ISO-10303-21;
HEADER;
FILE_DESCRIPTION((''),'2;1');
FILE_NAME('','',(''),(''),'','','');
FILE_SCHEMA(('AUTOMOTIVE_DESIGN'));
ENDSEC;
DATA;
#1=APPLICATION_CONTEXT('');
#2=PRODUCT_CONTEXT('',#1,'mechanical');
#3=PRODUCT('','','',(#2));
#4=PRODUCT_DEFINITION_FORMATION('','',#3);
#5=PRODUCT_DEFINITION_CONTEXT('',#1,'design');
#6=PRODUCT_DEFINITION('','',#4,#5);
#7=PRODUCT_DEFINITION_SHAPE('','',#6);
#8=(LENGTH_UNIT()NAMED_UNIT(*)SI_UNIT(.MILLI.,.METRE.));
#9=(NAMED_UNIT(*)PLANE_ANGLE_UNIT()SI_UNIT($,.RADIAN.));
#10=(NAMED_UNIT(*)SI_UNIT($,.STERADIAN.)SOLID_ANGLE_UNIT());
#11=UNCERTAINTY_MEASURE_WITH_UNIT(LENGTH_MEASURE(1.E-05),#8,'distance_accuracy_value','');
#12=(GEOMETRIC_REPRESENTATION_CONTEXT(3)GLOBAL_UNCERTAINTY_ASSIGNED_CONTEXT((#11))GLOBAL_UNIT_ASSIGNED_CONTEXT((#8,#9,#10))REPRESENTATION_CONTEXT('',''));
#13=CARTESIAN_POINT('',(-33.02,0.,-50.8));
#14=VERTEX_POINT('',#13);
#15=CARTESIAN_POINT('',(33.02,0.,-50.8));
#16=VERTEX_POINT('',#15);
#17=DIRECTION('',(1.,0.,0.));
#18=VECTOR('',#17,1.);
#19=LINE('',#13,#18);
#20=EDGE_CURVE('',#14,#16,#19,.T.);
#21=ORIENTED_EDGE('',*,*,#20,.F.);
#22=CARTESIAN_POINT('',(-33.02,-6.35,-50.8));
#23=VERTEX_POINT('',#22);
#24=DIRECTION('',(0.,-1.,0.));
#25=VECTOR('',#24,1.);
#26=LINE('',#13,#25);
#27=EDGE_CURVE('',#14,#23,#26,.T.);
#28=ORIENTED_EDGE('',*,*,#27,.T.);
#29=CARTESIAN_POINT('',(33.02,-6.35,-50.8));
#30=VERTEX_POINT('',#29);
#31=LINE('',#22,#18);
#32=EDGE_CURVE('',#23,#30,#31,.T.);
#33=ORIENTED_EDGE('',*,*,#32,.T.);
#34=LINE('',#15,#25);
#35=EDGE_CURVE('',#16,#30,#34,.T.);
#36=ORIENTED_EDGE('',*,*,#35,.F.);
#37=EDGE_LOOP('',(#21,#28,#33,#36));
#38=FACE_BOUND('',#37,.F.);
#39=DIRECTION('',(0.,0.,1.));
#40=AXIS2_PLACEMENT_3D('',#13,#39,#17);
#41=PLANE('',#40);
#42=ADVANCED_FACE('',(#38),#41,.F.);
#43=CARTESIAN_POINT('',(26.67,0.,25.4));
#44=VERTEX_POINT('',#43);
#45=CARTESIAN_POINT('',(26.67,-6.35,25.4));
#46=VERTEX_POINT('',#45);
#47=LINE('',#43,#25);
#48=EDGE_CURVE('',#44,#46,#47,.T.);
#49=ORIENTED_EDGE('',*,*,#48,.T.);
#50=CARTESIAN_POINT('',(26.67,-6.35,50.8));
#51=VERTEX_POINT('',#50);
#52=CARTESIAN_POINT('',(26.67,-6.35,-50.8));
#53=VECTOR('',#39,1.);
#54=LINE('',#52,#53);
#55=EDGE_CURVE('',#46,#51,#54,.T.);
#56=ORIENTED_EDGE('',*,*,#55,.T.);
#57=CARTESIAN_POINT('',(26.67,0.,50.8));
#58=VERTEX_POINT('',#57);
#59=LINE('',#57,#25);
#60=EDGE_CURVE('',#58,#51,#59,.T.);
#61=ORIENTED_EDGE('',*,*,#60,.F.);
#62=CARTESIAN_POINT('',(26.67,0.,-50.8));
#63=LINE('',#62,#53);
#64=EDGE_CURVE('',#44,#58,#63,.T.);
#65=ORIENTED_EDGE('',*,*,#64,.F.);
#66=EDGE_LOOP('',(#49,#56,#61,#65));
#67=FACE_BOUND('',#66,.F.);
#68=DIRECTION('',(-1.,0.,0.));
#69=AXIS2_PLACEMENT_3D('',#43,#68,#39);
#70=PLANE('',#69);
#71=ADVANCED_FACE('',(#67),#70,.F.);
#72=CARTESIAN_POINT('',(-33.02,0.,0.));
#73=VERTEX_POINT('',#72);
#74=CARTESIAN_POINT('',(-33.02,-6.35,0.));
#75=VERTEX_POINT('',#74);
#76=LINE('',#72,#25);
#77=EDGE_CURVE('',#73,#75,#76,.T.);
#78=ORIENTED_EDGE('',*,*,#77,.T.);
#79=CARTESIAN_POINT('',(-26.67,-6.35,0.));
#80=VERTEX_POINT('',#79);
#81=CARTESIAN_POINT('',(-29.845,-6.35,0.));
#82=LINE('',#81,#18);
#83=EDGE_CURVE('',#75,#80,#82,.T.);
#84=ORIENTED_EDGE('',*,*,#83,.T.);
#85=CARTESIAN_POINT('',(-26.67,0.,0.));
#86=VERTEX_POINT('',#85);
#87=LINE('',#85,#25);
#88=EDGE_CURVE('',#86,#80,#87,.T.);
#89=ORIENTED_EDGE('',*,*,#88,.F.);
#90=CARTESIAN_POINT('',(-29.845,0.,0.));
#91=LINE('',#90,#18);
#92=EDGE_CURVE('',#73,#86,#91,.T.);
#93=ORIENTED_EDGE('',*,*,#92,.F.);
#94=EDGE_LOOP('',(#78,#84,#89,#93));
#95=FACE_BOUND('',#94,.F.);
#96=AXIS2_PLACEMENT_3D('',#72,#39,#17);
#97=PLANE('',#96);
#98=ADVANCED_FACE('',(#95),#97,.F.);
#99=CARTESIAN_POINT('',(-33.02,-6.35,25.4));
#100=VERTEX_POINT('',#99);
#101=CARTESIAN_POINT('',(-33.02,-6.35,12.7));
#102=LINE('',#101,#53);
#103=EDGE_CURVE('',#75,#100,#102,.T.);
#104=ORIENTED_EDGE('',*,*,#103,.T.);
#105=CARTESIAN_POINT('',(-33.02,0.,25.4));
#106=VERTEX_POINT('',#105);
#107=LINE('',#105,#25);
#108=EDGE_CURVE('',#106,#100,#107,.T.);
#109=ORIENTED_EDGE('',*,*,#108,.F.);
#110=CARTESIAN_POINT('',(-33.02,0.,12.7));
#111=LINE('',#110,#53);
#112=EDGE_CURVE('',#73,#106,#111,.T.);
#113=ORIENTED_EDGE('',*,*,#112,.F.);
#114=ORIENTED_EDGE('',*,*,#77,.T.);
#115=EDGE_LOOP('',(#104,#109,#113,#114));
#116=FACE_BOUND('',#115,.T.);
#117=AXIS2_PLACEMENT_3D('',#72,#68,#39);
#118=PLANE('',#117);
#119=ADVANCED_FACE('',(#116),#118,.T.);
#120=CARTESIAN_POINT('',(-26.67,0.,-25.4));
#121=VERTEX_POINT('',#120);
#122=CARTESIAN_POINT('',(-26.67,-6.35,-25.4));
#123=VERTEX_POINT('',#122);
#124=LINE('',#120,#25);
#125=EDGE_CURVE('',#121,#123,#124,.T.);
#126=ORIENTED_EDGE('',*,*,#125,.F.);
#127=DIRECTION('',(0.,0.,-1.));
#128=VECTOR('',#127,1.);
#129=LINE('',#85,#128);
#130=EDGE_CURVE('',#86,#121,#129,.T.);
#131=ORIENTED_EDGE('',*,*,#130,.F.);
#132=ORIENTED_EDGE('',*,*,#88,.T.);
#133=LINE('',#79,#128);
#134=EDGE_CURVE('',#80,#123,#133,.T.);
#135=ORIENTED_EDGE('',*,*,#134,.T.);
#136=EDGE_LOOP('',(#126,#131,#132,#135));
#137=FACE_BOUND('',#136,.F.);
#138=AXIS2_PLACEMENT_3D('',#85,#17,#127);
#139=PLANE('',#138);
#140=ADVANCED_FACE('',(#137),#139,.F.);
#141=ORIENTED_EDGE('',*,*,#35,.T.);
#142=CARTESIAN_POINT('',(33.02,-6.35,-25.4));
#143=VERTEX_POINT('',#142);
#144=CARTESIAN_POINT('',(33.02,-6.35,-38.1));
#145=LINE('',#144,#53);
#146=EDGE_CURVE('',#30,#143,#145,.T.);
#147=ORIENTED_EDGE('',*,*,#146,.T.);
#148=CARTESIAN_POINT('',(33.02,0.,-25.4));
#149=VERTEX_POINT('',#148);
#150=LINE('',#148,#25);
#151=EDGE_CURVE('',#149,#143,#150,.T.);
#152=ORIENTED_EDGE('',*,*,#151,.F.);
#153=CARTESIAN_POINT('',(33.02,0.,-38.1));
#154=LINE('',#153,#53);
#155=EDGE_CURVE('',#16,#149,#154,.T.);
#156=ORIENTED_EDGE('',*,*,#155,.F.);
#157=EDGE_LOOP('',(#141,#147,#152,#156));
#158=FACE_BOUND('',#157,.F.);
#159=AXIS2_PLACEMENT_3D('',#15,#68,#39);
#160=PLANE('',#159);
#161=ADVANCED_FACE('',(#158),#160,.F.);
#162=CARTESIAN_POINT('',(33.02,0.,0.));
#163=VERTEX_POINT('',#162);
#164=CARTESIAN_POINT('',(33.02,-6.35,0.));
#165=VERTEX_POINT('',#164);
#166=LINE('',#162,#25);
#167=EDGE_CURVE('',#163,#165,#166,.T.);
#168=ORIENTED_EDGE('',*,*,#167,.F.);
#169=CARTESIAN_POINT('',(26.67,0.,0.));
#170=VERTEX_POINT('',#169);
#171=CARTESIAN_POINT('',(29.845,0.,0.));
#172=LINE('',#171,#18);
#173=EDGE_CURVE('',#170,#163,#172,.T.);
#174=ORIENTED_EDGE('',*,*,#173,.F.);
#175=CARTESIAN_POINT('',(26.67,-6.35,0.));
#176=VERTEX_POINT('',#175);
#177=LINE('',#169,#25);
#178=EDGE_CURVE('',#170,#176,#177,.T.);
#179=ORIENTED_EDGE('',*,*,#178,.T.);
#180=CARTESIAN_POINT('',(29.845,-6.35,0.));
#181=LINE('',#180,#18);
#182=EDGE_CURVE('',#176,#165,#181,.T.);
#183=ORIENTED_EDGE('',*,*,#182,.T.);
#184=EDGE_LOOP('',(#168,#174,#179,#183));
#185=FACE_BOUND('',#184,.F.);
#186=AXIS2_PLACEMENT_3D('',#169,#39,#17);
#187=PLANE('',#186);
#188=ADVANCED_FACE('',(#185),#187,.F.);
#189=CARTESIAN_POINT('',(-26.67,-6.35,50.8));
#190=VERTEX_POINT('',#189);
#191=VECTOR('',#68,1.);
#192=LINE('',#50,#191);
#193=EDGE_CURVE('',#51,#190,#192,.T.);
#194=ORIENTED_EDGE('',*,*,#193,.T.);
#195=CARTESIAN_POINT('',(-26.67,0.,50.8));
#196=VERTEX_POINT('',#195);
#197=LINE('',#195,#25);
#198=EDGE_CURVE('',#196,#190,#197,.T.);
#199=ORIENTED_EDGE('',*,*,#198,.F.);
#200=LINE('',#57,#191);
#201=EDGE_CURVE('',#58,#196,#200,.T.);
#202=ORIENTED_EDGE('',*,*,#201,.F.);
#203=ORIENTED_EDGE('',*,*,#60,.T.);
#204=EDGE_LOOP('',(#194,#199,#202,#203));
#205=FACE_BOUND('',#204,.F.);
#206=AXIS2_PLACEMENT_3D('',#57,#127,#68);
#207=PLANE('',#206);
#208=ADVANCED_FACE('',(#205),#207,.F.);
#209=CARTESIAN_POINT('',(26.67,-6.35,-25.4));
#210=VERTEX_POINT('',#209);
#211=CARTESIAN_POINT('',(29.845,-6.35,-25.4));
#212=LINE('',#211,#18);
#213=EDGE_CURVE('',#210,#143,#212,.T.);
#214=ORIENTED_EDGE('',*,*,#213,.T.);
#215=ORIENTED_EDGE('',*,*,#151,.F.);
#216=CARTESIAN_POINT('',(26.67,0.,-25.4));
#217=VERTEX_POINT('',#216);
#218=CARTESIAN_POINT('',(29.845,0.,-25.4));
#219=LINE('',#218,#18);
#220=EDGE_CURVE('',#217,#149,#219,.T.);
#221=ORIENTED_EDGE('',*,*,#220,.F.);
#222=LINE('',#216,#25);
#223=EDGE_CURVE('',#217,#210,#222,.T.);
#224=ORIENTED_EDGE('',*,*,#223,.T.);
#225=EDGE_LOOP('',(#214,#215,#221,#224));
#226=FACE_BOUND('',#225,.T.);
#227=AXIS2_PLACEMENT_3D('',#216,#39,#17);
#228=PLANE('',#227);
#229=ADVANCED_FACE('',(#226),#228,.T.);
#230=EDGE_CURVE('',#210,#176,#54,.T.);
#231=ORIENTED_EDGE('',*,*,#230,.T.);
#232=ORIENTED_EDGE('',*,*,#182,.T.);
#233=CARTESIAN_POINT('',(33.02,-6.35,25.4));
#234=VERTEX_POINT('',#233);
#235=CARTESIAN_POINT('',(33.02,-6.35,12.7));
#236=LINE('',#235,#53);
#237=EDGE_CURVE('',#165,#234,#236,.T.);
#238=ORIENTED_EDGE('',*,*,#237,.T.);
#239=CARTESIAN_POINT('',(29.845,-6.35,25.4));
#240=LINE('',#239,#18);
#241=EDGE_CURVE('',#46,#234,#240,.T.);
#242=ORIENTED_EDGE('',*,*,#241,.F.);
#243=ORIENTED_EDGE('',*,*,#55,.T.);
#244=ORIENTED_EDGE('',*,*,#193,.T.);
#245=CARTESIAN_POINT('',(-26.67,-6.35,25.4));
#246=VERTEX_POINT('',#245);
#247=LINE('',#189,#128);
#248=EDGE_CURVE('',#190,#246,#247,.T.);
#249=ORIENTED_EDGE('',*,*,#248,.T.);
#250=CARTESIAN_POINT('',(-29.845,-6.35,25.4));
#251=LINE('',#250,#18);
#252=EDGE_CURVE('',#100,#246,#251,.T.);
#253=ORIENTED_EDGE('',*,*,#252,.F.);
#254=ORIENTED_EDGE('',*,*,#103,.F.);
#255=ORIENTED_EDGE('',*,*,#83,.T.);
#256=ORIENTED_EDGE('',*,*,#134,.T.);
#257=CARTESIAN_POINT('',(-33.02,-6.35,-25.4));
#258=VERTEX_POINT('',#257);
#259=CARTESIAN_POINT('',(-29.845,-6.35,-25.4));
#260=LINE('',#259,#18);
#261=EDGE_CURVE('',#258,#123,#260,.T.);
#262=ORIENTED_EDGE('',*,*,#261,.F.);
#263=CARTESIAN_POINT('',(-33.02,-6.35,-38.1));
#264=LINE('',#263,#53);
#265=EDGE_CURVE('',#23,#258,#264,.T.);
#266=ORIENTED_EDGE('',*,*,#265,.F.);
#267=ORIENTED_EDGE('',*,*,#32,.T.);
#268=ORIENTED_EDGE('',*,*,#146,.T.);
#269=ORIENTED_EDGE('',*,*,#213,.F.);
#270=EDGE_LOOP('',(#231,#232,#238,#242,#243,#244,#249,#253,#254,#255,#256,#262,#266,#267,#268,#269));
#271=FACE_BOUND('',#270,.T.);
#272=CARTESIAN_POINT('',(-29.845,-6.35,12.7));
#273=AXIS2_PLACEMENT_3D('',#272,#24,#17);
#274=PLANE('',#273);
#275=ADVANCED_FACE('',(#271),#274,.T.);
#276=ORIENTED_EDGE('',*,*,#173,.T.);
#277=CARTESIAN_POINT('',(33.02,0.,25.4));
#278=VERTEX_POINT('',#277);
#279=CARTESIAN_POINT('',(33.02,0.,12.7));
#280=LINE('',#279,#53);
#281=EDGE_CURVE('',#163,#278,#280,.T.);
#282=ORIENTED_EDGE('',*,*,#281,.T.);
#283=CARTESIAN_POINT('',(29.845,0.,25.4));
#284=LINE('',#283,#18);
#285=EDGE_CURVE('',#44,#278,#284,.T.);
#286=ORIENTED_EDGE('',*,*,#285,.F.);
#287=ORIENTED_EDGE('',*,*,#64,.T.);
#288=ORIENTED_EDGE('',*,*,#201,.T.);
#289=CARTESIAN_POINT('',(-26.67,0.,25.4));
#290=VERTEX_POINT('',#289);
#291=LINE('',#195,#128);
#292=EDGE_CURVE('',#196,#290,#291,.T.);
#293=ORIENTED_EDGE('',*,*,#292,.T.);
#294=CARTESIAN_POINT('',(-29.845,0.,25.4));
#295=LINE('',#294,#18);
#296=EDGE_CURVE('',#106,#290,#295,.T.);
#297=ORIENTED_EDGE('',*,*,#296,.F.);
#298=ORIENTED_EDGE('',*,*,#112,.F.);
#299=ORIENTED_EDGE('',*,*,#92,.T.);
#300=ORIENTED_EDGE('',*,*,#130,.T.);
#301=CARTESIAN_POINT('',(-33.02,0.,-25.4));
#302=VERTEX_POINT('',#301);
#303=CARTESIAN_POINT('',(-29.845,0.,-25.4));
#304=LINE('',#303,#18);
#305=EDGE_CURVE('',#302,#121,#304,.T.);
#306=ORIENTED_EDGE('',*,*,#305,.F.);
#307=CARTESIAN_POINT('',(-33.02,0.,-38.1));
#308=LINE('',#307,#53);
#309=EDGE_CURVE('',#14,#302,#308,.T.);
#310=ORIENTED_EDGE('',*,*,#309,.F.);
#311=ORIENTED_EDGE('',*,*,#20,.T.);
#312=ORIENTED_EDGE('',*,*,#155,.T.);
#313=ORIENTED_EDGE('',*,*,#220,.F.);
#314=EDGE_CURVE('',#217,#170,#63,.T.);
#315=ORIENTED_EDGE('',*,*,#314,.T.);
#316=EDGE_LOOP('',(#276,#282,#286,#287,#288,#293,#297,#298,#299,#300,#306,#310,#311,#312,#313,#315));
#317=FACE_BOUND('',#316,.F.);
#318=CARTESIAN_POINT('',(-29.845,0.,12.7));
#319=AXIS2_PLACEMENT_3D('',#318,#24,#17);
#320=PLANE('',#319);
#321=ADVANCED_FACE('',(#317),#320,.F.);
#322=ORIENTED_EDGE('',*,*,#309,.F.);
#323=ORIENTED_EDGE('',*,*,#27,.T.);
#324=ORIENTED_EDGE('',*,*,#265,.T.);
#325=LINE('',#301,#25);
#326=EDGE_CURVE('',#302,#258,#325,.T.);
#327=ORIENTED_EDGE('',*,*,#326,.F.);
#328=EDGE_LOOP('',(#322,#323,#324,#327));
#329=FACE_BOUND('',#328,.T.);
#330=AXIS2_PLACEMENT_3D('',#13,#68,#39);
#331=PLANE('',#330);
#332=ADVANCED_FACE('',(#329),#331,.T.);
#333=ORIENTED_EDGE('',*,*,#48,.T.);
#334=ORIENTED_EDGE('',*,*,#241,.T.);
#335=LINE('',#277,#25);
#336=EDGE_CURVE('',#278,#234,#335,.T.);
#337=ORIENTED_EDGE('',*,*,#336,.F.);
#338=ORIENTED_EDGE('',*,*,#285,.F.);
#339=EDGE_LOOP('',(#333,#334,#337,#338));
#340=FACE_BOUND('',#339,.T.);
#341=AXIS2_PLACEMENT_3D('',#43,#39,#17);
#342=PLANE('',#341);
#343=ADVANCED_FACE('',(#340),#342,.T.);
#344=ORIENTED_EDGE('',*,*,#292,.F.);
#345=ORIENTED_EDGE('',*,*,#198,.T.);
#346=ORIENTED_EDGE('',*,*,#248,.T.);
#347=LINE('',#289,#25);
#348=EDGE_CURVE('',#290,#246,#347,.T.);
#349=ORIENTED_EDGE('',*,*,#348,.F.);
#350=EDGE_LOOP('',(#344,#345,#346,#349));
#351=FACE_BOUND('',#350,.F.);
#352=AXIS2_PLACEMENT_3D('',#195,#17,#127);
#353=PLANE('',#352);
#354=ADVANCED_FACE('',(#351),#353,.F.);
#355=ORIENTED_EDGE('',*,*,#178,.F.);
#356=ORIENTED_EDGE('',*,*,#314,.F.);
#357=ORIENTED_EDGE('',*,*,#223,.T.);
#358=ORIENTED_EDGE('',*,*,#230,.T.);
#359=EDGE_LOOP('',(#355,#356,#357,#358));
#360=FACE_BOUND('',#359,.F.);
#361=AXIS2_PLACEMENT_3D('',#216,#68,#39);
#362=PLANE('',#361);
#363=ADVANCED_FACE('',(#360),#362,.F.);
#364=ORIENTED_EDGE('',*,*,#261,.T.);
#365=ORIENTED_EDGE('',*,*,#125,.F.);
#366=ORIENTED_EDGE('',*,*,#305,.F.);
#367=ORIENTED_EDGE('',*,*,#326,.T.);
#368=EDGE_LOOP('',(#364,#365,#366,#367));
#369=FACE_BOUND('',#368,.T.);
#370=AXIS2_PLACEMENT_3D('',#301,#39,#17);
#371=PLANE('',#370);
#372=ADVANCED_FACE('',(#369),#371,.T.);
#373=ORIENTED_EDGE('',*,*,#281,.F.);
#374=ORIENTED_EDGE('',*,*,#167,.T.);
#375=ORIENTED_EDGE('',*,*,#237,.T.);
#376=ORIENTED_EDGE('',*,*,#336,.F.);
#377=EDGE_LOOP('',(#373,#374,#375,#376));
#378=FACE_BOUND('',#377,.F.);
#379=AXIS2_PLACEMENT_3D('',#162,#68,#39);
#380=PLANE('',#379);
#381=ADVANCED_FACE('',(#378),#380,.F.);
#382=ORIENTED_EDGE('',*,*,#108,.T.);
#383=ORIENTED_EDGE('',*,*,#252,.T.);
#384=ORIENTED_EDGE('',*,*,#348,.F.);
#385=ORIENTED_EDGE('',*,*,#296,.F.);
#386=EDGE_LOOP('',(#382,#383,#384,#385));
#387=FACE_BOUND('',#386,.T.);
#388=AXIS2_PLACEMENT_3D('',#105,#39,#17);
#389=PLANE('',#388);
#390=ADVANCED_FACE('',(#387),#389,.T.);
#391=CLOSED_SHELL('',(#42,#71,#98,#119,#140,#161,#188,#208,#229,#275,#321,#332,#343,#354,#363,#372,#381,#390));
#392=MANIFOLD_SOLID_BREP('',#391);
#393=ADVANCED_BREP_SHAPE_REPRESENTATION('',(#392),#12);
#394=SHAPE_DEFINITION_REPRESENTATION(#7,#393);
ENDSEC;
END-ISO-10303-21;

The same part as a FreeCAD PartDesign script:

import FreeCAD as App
import Part
import Sketcher

V = App.Vector
Q = App.Units.Quantity


def add_polygon(sketch, points):
    """Adds a closed chain of lines whose ends are joined by coincident constraints."""
    first, n = sketch.GeometryCount, len(points)
    for a, b in zip(points, points[1:] + points[:1]):
        sketch.addGeometry(Part.LineSegment(App.Vector(*a, 0), App.Vector(*b, 0)), False)
    for i in range(n):
        sketch.addConstraint(Sketcher.Constraint("Coincident", first + i, 2, first + (i + 1) % n, 1))

doc = App.newDocument("Part")
body = doc.addObject("PartDesign::Body", "Body")

# Sketch on XZ plane
sketch1 = doc.addObject("Sketcher::SketchObject", "Sketch")
body.addObject(sketch1)
sketch1.AttachmentSupport = (doc.XZ_Plane, [""])
sketch1.MapMode = "FlatFace"
add_polygon(sketch1, [(-33.02, 25.4), (-33.02, 0), (-26.67, 0), (-26.67, -25.4), (-33.02, -25.4), (-33.02, -50.8), (33.02, -50.8), (33.02, -25.4), (26.67, -25.4), (26.67, 0), (33.02, 0), (33.02, 25.4), (26.67, 25.4), (26.67, 50.8), (-26.67, 50.8), (-26.67, 25.4)])  # lines 0-15
sketch1.addConstraint([
    Sketcher.Constraint("Vertical", 0),
    Sketcher.Constraint("Horizontal", 1),
    Sketcher.Constraint("Vertical", 2),
    Sketcher.Constraint("Horizontal", 3),
    Sketcher.Constraint("Vertical", 4),
    Sketcher.Constraint("Horizontal", 5),
    Sketcher.Constraint("Vertical", 6),
    Sketcher.Constraint("Horizontal", 7),
    Sketcher.Constraint("Vertical", 8),
    Sketcher.Constraint("Horizontal", 9),
    Sketcher.Constraint("Vertical", 10),
    Sketcher.Constraint("Horizontal", 11),
    Sketcher.Constraint("Vertical", 12),
    Sketcher.Constraint("Horizontal", 13),
    Sketcher.Constraint("Vertical", 14),
    Sketcher.Constraint("Horizontal", 15),
    Sketcher.Constraint("Symmetric", 1, 2, 8, 2, -1, 1),
    Sketcher.Constraint("Symmetric", 3, 2, 10, 2, -1, 1),
    Sketcher.Constraint("Symmetric", 7, 2, 14, 2, -1, 1),
    Sketcher.Constraint("Symmetric", 3, 2, 6, 2, -2),
    Sketcher.Constraint("Symmetric", 0, 2, 9, 2, -2),
    Sketcher.Constraint("Vertical", 8, 2, 11, 2),
    Sketcher.Constraint("Equal", 2, 4),
    Sketcher.Constraint("Equal", 10, 12),
    Sketcher.Constraint("DistanceY", 0, 2, 0, 1, Q("1 in")),
    Sketcher.Constraint("DistanceX", 5, 1, 5, 2, Q("2.6 in")),
    Sketcher.Constraint("DistanceX", 13, 2, 13, 1, Q("2.1 in")),
])
pad1 = doc.addObject("PartDesign::Pad", "Pad")
body.addObject(pad1)
pad1.Profile = sketch1
pad1.Length = Q("0.25 in")

doc.recompute()
